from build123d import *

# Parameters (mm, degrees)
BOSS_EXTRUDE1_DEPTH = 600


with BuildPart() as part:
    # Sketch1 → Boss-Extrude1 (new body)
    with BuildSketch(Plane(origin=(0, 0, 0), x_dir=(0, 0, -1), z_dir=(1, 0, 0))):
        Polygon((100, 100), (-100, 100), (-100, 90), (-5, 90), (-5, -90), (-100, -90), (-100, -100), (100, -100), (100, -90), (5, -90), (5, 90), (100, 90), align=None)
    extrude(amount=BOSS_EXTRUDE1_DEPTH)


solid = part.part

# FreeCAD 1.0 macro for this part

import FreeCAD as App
import Part
import Sketcher
from FreeCAD import Vector
Q = App.Units.Quantity

doc = App.newDocument("Part")
body = doc.addObject("PartDesign::Body", "Body")

sketch1 = body.newObject("Sketcher::SketchObject", "Sketch")
sketch1.AttachmentSupport = (doc.getObject("YZ_Plane"), [""])
sketch1.MapMode = "FlatFace"
sketch1.addGeometry([
    Part.LineSegment(Vector(100, -100, 0), Vector(100, 100, 0)),
    Part.LineSegment(Vector(100, 100, 0), Vector(90, 100, 0)),
    Part.LineSegment(Vector(90, 100, 0), Vector(90, 5, 0)),
    Part.LineSegment(Vector(90, 5, 0), Vector(-90, 5, 0)),
    Part.LineSegment(Vector(-90, 5, 0), Vector(-90, 100, 0)),
    Part.LineSegment(Vector(-90, 100, 0), Vector(-100, 100, 0)),
    Part.LineSegment(Vector(-100, 100, 0), Vector(-100, -100, 0)),
    Part.LineSegment(Vector(-100, -100, 0), Vector(-90, -100, 0)),
    Part.LineSegment(Vector(-90, -100, 0), Vector(-90, -5, 0)),
    Part.LineSegment(Vector(-90, -5, 0), Vector(90, -5, 0)),
    Part.LineSegment(Vector(90, -5, 0), Vector(90, -100, 0)),
    Part.LineSegment(Vector(90, -100, 0), Vector(100, -100, 0)),
], False)
sketch1.addConstraint([
    Sketcher.Constraint("Coincident", 0, 2, 1, 1),
    Sketcher.Constraint("Coincident", 1, 2, 2, 1),
    Sketcher.Constraint("Coincident", 2, 2, 3, 1),
    Sketcher.Constraint("Coincident", 3, 2, 4, 1),
    Sketcher.Constraint("Coincident", 4, 2, 5, 1),
    Sketcher.Constraint("Coincident", 5, 2, 6, 1),
    Sketcher.Constraint("Coincident", 6, 2, 7, 1),
    Sketcher.Constraint("Coincident", 7, 2, 8, 1),
    Sketcher.Constraint("Coincident", 8, 2, 9, 1),
    Sketcher.Constraint("Coincident", 9, 2, 10, 1),
    Sketcher.Constraint("Coincident", 10, 2, 11, 1),
    Sketcher.Constraint("Coincident", 11, 2, 0, 1),
    Sketcher.Constraint("Vertical", 0),
    Sketcher.Constraint("Horizontal", 1),
    Sketcher.Constraint("Vertical", 2),
    Sketcher.Constraint("Horizontal", 3),
    Sketcher.Constraint("Vertical", 4),
    Sketcher.Constraint("Horizontal", 5),
    Sketcher.Constraint("Vertical", 6),
    Sketcher.Constraint("Horizontal", 7),
    Sketcher.Constraint("Vertical", 8),
    Sketcher.Constraint("Horizontal", 9),
    Sketcher.Constraint("Vertical", 10),
    Sketcher.Constraint("Horizontal", 11),
    Sketcher.Constraint("Symmetric", 0, 2, 6, 2, -1, 1),
    Sketcher.Constraint("Symmetric", 2, 2, 8, 2, -1, 1),
    Sketcher.Constraint("Symmetric", 4, 2, 10, 2, -1, 1),
    Sketcher.Constraint("Symmetric", 1, 2, 4, 2, -2),
    Sketcher.Constraint("DistanceX", 1, 2, 1, 1, Q("10 mm")),
    Sketcher.Constraint("DistanceX", 3, 2, 3, 1, Q("180 mm")),
    Sketcher.Constraint("DistanceY", 0, 1, 0, 2, Q("200 mm")),
    Sketcher.Constraint("DistanceY", 2, 2, 2, 1, Q("95 mm")),
])
pad1 = body.newObject("PartDesign::Pad", "Pad")
pad1.Profile = sketch1
pad1.Length = 600

doc.recompute()
